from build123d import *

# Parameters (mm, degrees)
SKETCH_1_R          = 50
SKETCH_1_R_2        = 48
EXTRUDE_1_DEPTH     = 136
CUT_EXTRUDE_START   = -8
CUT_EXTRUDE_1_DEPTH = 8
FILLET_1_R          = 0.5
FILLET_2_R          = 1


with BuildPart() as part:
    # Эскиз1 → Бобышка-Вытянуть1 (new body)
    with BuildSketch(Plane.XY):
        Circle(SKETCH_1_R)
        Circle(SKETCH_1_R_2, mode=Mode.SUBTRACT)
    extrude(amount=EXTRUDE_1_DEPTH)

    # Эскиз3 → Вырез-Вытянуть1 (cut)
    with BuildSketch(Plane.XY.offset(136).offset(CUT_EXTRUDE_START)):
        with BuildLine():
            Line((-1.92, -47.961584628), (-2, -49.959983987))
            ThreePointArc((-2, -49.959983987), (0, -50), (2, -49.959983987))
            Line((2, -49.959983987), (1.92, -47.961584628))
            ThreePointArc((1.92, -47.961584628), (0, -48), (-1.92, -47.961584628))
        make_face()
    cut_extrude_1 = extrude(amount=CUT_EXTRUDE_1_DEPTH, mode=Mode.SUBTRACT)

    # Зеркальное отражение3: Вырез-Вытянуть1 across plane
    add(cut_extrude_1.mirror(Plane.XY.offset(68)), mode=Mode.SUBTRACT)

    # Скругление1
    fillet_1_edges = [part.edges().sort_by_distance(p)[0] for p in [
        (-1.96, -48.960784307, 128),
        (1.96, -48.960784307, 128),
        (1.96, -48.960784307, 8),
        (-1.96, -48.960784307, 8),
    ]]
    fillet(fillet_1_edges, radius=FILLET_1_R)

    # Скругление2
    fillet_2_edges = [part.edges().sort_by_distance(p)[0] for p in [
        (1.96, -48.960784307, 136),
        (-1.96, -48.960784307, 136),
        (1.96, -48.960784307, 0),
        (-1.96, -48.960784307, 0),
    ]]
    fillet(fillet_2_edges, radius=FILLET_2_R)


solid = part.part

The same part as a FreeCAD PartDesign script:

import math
import FreeCAD as App
import Part
import Sketcher
from FreeCAD import Vector


def edges_at(feature, points):
    """Names of the edges that pass closest to the given points."""
    edges = feature.Shape.Edges
    near = lambda p: min(range(len(edges)), key=lambda i: edges[i].distToShape(Part.Vertex(*p))[0])
    return sorted({f"Edge{near(p) + 1}" for p in points})

doc = App.newDocument("Part")
body = doc.addObject("PartDesign::Body", "Body")

# Sketch on XY plane
sketch1 = doc.addObject("Sketcher::SketchObject", "Sketch")
body.addObject(sketch1)
sketch1.AttachmentSupport = (doc.XY_Plane, [""])
sketch1.MapMode = "FlatFace"
sketch1.addGeometry([
    Part.Circle(Vector(0, 0, 0), Vector(0, 0, 1), 50),
    Part.Circle(Vector(0, 0, 0), Vector(0, 0, 1), 48),
], False)
sketch1.addConstraint([
    Sketcher.Constraint("Coincident", 0, 3, -1, 1),
    Sketcher.Constraint("Coincident", 1, 3, -1, 1),
    Sketcher.Constraint("Diameter", 0, 100.0),
    Sketcher.Constraint("Diameter", 1, 96.0),
])
pad1 = doc.addObject("PartDesign::Pad", "Pad")
body.addObject(pad1)
pad1.Profile = sketch1
pad1.Length = 136

# Sketch on XY plane
sketch2 = doc.addObject("Sketcher::SketchObject", "Sketch001")
body.addObject(sketch2)
sketch2.AttachmentSupport = (doc.XY_Plane, [""])
sketch2.MapMode = "FlatFace"
sketch2.AttachmentOffset = App.Placement(Vector(0, 0, 128), App.Rotation())
sketch2.addGeometry([
    Part.LineSegment(Vector(-1.9, -48, 0), Vector(-2, -50, 0)),
    Part.ArcOfCircle(Part.Circle(Vector(0, 0, 0), Vector(0, 0, 1), 50), math.radians(-92.29), math.radians(-87.71)),
    Part.LineSegment(Vector(2, -50, 0), Vector(1.9, -48, 0)),
    Part.ArcOfCircle(Part.Circle(Vector(0, 0, 0), Vector(0, 0, 1), 48), math.radians(-92.29), math.radians(-87.71)),
], False)
sketch2.addConstraint([
    Sketcher.Constraint("Coincident", 0, 2, 1, 1),
    Sketcher.Constraint("Coincident", 1, 2, 2, 1),
    Sketcher.Constraint("Coincident", 2, 2, 3, 2),
    Sketcher.Constraint("Coincident", 3, 1, 0, 1),
    Sketcher.Constraint("Coincident", 1, 3, -1, 1),
    Sketcher.Constraint("Coincident", 3, 3, -1, 1),
    Sketcher.Constraint("Horizontal", 0, 2, 1, 2),
    Sketcher.Constraint("Horizontal", 2, 2, 3, 1),
    Sketcher.Constraint("Radius", 1, 50.0),
    Sketcher.Constraint("Radius", 3, 48.0),
    Sketcher.Constraint("DistanceX", 0, 2, -1, 1, 2.0),
    Sketcher.Constraint("DistanceX", -1, 1, 2, 2, 1.92),
])
pocket1 = doc.addObject("PartDesign::Pocket", "Pocket")
body.addObject(pocket1)
pocket1.Profile = sketch2
pocket1.Length = 8
pocket1.Reversed = True
doc.recompute()

datumplane = doc.addObject("PartDesign::Plane", "DatumPlane")
body.addObject(datumplane)
datumplane.AttachmentSupport = (doc.XY_Plane, [""])
datumplane.MapMode = "FlatFace"
datumplane.AttachmentOffset = App.Placement(Vector(0, 0, 68), App.Rotation())
mirrored = doc.addObject("PartDesign::Mirrored", "Mirrored")
body.addObject(mirrored)
mirrored.Originals = [pocket1]
mirrored.MirrorPlane = (datumplane, [""])
body.Tip = mirrored
doc.recompute()

fillet = doc.addObject("PartDesign::Fillet", "Fillet")
body.addObject(fillet)
fillet.Base = (mirrored, edges_at(mirrored, [
    (-1.96, -48.961, 128),
    (1.96, -48.961, 128),
    (1.96, -48.961, 8),
    (-1.96, -48.961, 8),
]))
fillet.Radius = 0.5
doc.recompute()

fillet2 = doc.addObject("PartDesign::Fillet", "Fillet001")
body.addObject(fillet2)
fillet2.Base = (fillet, edges_at(fillet, [
    (1.96, -48.961, 136),
    (-1.96, -48.961, 136),
    (1.96, -48.961, 0),
    (-1.96, -48.961, 0),
]))
fillet2.Radius = 1

doc.recompute()
